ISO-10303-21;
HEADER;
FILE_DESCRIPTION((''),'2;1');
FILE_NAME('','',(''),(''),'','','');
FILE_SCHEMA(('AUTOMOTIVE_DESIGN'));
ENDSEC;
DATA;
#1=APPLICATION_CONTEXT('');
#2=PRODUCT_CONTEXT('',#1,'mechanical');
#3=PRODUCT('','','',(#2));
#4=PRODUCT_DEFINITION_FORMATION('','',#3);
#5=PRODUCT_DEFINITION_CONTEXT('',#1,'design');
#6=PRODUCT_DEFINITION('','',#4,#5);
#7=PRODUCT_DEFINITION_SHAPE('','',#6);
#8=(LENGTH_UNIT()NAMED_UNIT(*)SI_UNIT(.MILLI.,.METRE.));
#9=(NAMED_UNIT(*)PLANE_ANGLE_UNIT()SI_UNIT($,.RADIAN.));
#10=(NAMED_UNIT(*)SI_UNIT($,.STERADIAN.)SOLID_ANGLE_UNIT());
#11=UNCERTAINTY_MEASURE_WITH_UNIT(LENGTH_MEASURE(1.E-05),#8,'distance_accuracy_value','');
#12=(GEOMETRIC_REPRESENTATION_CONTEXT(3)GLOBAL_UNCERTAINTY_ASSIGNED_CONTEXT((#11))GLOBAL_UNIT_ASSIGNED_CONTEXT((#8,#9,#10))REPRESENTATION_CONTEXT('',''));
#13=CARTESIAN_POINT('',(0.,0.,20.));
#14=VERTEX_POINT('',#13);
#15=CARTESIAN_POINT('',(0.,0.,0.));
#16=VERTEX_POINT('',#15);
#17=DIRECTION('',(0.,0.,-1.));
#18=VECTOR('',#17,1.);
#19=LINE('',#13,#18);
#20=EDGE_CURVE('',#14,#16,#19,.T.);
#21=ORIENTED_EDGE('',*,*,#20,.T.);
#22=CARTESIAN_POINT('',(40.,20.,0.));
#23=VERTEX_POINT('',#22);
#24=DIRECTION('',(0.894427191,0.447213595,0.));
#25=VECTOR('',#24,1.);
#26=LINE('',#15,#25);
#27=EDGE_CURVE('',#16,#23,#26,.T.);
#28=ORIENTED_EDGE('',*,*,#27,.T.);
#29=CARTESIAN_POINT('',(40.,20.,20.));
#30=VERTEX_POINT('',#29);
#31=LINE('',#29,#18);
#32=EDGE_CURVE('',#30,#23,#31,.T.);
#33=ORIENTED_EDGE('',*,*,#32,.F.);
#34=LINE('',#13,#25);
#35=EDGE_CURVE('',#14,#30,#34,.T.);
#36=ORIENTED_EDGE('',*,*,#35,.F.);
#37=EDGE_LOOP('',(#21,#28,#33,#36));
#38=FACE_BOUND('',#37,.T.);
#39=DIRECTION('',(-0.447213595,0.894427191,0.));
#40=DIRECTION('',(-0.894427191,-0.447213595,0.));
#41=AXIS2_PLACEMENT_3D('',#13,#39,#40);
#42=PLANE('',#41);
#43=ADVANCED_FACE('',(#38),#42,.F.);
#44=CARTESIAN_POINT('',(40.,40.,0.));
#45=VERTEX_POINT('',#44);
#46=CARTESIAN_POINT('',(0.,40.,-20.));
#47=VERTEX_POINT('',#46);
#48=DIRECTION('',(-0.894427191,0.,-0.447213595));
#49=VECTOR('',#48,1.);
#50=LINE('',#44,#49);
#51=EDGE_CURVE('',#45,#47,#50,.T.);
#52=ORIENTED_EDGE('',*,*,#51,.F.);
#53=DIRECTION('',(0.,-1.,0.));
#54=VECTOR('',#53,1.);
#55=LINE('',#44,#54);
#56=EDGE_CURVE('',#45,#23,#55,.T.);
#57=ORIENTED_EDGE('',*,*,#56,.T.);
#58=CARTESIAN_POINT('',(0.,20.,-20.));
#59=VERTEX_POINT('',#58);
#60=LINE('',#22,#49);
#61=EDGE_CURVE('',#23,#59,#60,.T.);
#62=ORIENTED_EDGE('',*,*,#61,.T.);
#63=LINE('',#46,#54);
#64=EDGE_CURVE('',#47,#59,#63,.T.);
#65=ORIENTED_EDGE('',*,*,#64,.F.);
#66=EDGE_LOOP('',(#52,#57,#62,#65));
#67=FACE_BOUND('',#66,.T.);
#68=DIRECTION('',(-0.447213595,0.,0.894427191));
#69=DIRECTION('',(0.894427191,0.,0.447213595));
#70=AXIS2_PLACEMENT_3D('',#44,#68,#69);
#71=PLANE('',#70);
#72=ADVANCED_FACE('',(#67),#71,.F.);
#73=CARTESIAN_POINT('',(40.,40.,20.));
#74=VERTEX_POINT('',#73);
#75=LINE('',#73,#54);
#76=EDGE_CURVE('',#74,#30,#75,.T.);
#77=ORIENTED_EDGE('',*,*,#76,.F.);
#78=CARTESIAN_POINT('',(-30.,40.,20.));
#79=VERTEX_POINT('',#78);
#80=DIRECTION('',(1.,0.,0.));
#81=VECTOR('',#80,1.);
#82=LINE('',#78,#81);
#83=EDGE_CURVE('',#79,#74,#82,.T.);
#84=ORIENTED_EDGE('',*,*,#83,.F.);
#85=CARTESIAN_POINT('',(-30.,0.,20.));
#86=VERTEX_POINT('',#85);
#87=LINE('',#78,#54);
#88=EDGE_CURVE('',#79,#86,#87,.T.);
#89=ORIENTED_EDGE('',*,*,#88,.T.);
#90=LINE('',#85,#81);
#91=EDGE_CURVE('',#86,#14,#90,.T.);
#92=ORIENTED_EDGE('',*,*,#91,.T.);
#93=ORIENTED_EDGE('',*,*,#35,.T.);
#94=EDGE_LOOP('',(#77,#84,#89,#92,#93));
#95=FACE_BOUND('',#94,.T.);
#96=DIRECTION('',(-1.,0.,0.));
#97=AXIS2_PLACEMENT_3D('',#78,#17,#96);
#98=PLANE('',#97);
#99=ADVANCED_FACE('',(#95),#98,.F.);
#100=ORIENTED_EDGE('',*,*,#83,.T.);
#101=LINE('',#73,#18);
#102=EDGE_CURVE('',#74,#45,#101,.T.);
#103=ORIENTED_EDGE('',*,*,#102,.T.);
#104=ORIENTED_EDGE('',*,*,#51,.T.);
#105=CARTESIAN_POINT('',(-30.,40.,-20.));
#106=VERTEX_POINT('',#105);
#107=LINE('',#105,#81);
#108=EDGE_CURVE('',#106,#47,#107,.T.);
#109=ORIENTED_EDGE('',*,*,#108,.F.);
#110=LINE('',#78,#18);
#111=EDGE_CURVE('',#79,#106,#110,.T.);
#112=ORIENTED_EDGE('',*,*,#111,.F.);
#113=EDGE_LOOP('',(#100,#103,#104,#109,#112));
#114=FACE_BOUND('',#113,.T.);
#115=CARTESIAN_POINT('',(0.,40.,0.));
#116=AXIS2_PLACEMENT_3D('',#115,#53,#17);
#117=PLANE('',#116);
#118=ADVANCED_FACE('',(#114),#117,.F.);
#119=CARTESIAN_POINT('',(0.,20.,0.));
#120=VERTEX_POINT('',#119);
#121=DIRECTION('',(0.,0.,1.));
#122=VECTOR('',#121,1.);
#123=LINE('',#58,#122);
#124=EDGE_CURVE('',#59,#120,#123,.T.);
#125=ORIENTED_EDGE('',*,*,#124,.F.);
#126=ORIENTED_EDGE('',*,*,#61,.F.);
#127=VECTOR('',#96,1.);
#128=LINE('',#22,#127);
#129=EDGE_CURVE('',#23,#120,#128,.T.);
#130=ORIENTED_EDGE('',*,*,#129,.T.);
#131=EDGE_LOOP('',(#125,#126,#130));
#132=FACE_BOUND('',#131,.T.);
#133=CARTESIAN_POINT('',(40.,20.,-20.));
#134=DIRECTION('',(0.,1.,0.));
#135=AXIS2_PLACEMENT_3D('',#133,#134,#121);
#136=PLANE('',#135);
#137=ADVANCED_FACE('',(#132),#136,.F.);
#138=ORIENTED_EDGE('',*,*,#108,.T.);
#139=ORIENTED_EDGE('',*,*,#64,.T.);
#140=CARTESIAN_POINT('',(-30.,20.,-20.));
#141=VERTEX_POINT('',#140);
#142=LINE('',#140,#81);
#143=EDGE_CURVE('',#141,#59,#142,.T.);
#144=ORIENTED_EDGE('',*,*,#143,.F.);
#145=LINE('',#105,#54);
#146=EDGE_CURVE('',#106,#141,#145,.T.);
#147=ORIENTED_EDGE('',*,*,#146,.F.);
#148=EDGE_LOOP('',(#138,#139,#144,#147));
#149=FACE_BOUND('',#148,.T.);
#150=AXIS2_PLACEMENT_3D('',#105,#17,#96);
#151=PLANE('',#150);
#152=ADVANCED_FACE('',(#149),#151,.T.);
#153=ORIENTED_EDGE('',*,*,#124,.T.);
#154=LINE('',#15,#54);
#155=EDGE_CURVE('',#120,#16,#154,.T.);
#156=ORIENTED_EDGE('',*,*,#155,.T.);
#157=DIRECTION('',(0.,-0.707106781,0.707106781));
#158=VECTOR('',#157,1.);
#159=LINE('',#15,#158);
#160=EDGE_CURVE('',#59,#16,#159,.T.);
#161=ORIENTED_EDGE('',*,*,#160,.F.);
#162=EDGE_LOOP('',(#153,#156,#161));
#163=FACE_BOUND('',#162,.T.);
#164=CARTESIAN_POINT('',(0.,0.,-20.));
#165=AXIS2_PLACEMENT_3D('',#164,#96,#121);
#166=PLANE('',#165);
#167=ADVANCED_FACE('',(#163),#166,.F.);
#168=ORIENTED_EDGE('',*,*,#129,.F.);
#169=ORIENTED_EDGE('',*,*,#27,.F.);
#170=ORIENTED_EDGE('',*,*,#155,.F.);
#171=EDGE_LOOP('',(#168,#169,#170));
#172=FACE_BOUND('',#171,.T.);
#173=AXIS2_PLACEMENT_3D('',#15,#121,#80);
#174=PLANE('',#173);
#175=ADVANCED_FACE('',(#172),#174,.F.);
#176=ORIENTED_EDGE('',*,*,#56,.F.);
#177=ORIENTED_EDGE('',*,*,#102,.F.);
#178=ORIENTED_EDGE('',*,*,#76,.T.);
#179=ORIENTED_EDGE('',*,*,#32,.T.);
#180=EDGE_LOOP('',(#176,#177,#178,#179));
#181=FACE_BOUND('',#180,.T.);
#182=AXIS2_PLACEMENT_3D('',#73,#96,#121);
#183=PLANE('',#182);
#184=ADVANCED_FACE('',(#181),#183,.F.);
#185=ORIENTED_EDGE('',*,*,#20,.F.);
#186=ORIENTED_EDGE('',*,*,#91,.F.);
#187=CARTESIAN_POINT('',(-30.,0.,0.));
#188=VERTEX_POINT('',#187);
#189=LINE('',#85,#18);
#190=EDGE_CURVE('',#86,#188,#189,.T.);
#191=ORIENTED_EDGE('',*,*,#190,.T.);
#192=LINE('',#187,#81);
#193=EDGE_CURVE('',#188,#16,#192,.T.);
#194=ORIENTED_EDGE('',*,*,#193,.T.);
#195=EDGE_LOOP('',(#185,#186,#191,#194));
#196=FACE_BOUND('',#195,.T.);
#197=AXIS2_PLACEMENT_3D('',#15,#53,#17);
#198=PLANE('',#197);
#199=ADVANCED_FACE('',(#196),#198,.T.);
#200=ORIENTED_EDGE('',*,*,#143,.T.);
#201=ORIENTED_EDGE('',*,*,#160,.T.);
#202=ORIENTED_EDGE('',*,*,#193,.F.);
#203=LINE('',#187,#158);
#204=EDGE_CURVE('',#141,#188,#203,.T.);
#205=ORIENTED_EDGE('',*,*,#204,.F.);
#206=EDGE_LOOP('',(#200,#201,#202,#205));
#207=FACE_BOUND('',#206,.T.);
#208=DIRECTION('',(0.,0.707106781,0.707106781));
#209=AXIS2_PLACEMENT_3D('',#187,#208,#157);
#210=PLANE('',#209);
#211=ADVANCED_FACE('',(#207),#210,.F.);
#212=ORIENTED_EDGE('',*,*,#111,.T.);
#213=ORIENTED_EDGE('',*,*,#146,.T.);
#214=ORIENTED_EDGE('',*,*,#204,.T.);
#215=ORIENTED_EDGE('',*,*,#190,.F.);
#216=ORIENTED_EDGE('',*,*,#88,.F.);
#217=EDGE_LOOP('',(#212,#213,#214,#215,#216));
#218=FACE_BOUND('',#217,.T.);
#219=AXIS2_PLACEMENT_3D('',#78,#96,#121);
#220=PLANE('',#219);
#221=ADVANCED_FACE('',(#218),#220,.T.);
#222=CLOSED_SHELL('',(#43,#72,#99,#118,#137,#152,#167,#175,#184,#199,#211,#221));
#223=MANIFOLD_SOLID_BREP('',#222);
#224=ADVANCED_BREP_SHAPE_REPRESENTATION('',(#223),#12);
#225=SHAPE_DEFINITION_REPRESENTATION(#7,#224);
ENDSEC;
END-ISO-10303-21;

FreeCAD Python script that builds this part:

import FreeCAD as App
import Part
import Sketcher
from FreeCAD import Vector
Q = App.Units.Quantity

doc = App.newDocument("Part")
body = doc.addObject("PartDesign::Body", "Body")

# Sketch on XZ plane
sketch1 = doc.addObject("Sketcher::SketchObject", "Sketch")
body.addObject(sketch1)
sketch1.AttachmentSupport = (doc.XZ_Plane, [""])
sketch1.MapMode = "FlatFace"
sketch1.addGeometry(Part.LineSegment(Vector(-30, -20, 0), Vector(-30, 20, 0)), False)
sketch1.addGeometry(Part.LineSegment(Vector(-30, 20, 0), Vector(40, 20, 0)), False)
sketch1.addGeometry(Part.LineSegment(Vector(40, 20, 0), Vector(40, -20, 0)), False)
sketch1.addGeometry(Part.LineSegment(Vector(40, -20, 0), Vector(-30, -20, 0)), False)
sketch1.addConstraint(Sketcher.Constraint("Coincident", 0, 2, 1, 1))
sketch1.addConstraint(Sketcher.Constraint("Coincident", 1, 2, 2, 1))
sketch1.addConstraint(Sketcher.Constraint("Coincident", 2, 2, 3, 1))
sketch1.addConstraint(Sketcher.Constraint("Coincident", 3, 2, 0, 1))
sketch1.addConstraint(Sketcher.Constraint("Vertical", 0))
sketch1.addConstraint(Sketcher.Constraint("Horizontal", 1))
sketch1.addConstraint(Sketcher.Constraint("Vertical", 2))
sketch1.addConstraint(Sketcher.Constraint("Horizontal", 3))
sketch1.addConstraint(Sketcher.Constraint("DistanceX", 1, 1, 1, 2, Q("70 mm")))
sketch1.addConstraint(Sketcher.Constraint("DistanceY", 0, 1, 0, 2, Q("40 mm")))
sketch1.addConstraint(Sketcher.Constraint("DistanceX", 0, 2, -1, 1, Q("30 mm")))
sketch1.addConstraint(Sketcher.Constraint("DistanceY", -1, 1, 0, 2, Q("20 mm")))
pad1 = doc.addObject("PartDesign::Pad", "Pad")
body.addObject(pad1)
pad1.Profile = sketch1
pad1.Length = 40
pad1.Reversed = True

# Sketch on XZ plane
sketch2 = doc.addObject("Sketcher::SketchObject", "Sketch001")
body.addObject(sketch2)
sketch2.AttachmentSupport = (doc.XZ_Plane, [""])
sketch2.MapMode = "FlatFace"
sketch2.addGeometry(Part.LineSegment(Vector(40, 0, 0), Vector(0, -20, 0)), False)
sketch2.addGeometry(Part.LineSegment(Vector(0, -20, 0), Vector(40, -20, 0)), False)
sketch2.addGeometry(Part.LineSegment(Vector(40, -20, 0), Vector(40, 0, 0)), False)
sketch2.addConstraint(Sketcher.Constraint("Coincident", 0, 2, 1, 1))
sketch2.addConstraint(Sketcher.Constraint("Coincident", 1, 2, 2, 1))
sketch2.addConstraint(Sketcher.Constraint("Coincident", 2, 2, 0, 1))
sketch2.addConstraint(Sketcher.Constraint("Horizontal", 1))
sketch2.addConstraint(Sketcher.Constraint("Vertical", 2))
sketch2.addConstraint(Sketcher.Constraint("PointOnObject", 0, 2, -2))
sketch2.addConstraint(Sketcher.Constraint("PointOnObject", 2, 2, -1))
sketch2.addConstraint(Sketcher.Constraint("DistanceX", 1, 1, 1, 2, Q("40 mm")))
sketch2.addConstraint(Sketcher.Constraint("DistanceY", 2, 1, 2, 2, Q("20 mm")))
pocket1 = doc.addObject("PartDesign::Pocket", "Pocket")
body.addObject(pocket1)
pocket1.Profile = sketch2
pocket1.Type = "ThroughAll"

# Sketch on XY plane
sketch3 = doc.addObject("Sketcher::SketchObject", "Sketch002")
body.addObject(sketch3)
sketch3.AttachmentSupport = (doc.XY_Plane, [""])
sketch3.MapMode = "FlatFace"
sketch3.addGeometry(Part.LineSegment(Vector(0, 20, 0), Vector(0, 0, 0)), False)
sketch3.addGeometry(Part.LineSegment(Vector(0, 0, 0), Vector(40, 0, 0)), False)
sketch3.addGeometry(Part.LineSegment(Vector(40, 0, 0), Vector(40, 20, 0)), False)
sketch3.addGeometry(Part.LineSegment(Vector(40, 20, 0), Vector(0, 20, 0)), False)
sketch3.addConstraint(Sketcher.Constraint("Coincident", 0, 2, 1, 1))
sketch3.addConstraint(Sketcher.Constraint("Coincident", 1, 2, 2, 1))
sketch3.addConstraint(Sketcher.Constraint("Coincident", 2, 2, 3, 1))
sketch3.addConstraint(Sketcher.Constraint("Coincident", 3, 2, 0, 1))
sketch3.addConstraint(Sketcher.Constraint("Vertical", 0))
sketch3.addConstraint(Sketcher.Constraint("Horizontal", 1))
sketch3.addConstraint(Sketcher.Constraint("Vertical", 2))
sketch3.addConstraint(Sketcher.Constraint("Horizontal", 3))
sketch3.addConstraint(Sketcher.Constraint("Coincident", 0, 2, -1, 1))
sketch3.addConstraint(Sketcher.Constraint("DistanceX", 1, 1, 1, 2, Q("40 mm")))
sketch3.addConstraint(Sketcher.Constraint("DistanceY", 0, 2, 0, 1, Q("20 mm")))
pocket2 = doc.addObject("PartDesign::Pocket", "Pocket001")
body.addObject(pocket2)
pocket2.Profile = sketch3
pocket2.Length = 20

# Sketch on XY plane
sketch4 = doc.addObject("Sketcher::SketchObject", "Sketch003")
body.addObject(sketch4)
sketch4.AttachmentSupport = (doc.XY_Plane, [""])
sketch4.MapMode = "FlatFace"
sketch4.addGeometry(Part.LineSegment(Vector(0, 0, 0), Vector(40, 20, 0)), False)
sketch4.addGeometry(Part.LineSegment(Vector(40, 20, 0), Vector(40, 0, 0)), False)
sketch4.addGeometry(Part.LineSegment(Vector(40, 0, 0), Vector(0, 0, 0)), False)
sketch4.addConstraint(Sketcher.Constraint("Coincident", 0, 2, 1, 1))
sketch4.addConstraint(Sketcher.Constraint("Coincident", 1, 2, 2, 1))
sketch4.addConstraint(Sketcher.Constraint("Coincident", 2, 2, 0, 1))
sketch4.addConstraint(Sketcher.Constraint("Vertical", 1))
sketch4.addConstraint(Sketcher.Constraint("Horizontal", 2))
sketch4.addConstraint(Sketcher.Constraint("Coincident", 2, 2, -1, 1))
sketch4.addConstraint(Sketcher.Constraint("DistanceX", 2, 2, 2, 1, Q("40 mm")))
sketch4.addConstraint(Sketcher.Constraint("DistanceY", 1, 2, 1, 1, Q("20 mm")))
pocket3 = doc.addObject("PartDesign::Pocket", "Pocket002")
body.addObject(pocket3)
pocket3.Profile = sketch4
pocket3.Length = 20
pocket3.Reversed = True

# Sketch on YZ plane
sketch5 = doc.addObject("Sketcher::SketchObject", "Sketch004")
body.addObject(sketch5)
sketch5.AttachmentSupport = (doc.YZ_Plane, [""])
sketch5.MapMode = "FlatFace"
sketch5.addGeometry(Part.LineSegment(Vector(20, -20, 0), Vector(0, 0, 0)), False)
sketch5.addGeometry(Part.LineSegment(Vector(0, 0, 0), Vector(0, -20, 0)), False)
sketch5.addGeometry(Part.LineSegment(Vector(0, -20, 0), Vector(20, -20, 0)), False)
sketch5.addConstraint(Sketcher.Constraint("Coincident", 0, 2, 1, 1))
sketch5.addConstraint(Sketcher.Constraint("Coincident", 1, 2, 2, 1))
sketch5.addConstraint(Sketcher.Constraint("Coincident", 2, 2, 0, 1))
sketch5.addConstraint(Sketcher.Constraint("Vertical", 1))
sketch5.addConstraint(Sketcher.Constraint("Horizontal", 2))
sketch5.addConstraint(Sketcher.Constraint("Coincident", 0, 2, -1, 1))
sketch5.addConstraint(Sketcher.Constraint("Equal", 2, 1))
sketch5.addConstraint(Sketcher.Constraint("DistanceX", 2, 1, 2, 2, Q("20 mm")))
pocket4 = doc.addObject("PartDesign::Pocket", "Pocket003")
body.addObject(pocket4)
pocket4.Profile = sketch5
pocket4.Type = "ThroughAll"

doc.recompute()
